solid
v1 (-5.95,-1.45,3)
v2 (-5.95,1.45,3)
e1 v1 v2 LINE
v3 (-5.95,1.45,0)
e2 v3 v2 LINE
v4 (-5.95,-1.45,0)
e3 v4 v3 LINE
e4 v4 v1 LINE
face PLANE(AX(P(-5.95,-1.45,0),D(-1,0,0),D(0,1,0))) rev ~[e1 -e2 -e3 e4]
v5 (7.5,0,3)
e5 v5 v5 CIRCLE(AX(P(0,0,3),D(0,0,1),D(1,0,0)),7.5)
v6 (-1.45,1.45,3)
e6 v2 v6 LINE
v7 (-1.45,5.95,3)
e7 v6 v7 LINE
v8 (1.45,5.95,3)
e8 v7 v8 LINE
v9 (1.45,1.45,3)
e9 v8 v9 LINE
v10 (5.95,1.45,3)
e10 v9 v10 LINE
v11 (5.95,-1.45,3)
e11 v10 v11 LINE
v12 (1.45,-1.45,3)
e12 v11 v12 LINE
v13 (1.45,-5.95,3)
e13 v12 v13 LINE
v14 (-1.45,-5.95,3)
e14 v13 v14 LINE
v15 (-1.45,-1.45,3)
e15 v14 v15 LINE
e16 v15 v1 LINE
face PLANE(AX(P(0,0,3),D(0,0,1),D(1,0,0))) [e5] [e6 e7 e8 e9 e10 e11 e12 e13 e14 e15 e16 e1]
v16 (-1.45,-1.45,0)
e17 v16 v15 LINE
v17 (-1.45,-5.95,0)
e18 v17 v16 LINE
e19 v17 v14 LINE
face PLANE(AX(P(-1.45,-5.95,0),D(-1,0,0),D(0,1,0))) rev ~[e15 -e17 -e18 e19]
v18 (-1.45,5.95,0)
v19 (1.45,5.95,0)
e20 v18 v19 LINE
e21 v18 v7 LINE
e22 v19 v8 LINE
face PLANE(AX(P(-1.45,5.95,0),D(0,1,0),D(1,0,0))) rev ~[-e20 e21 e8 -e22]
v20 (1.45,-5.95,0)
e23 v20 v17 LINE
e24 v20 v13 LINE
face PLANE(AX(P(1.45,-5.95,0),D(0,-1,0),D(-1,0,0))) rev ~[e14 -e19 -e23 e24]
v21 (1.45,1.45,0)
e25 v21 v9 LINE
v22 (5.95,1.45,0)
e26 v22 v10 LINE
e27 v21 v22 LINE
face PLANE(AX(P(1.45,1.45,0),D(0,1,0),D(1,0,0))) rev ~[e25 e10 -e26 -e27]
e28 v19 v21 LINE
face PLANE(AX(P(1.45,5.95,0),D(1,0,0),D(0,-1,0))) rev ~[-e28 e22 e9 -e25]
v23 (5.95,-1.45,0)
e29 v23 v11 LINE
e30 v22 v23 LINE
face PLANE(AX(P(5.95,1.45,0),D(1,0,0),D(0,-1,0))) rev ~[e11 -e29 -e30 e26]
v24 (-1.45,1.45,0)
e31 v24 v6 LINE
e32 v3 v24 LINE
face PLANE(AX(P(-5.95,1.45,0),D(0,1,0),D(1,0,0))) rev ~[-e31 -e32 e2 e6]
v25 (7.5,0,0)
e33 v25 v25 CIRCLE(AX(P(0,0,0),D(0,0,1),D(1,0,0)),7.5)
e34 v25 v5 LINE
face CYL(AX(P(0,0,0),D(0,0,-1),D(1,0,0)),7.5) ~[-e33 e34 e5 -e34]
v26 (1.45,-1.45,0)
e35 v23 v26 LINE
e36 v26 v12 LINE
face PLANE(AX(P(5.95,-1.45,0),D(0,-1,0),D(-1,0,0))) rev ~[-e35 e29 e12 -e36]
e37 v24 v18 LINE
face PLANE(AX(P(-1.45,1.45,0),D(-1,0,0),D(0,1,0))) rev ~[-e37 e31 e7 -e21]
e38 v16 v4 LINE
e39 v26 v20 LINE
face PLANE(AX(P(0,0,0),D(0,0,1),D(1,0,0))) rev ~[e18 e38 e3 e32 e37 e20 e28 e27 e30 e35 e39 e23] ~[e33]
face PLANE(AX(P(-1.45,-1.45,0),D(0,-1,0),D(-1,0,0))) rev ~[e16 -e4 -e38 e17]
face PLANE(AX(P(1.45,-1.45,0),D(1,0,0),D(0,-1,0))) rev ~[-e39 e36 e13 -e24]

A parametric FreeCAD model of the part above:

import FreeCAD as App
import Part
import Sketcher

V = App.Vector
Q = App.Units.Quantity


def add_polygon(sketch, points):
    """Adds a closed chain of lines whose ends are joined by coincident constraints."""
    first, n = sketch.GeometryCount, len(points)
    for a, b in zip(points, points[1:] + points[:1]):
        sketch.addGeometry(Part.LineSegment(App.Vector(*a, 0), App.Vector(*b, 0)), False)
    for i in range(n):
        sketch.addConstraint(Sketcher.Constraint("Coincident", first + i, 2, first + (i + 1) % n, 1))

doc = App.newDocument("Part")
params = doc.addObject("Spreadsheet::Sheet", "Params")
for row, (alias, value) in enumerate([
    ("sketch1_diameter", "15 mm"),
    ("sketch1_width", "2.9 mm"),
    ("sketch1_width2", "4.5 mm"),
    ("pad1_length", "3 mm"),
], start=1):
    params.set(f"A{row}", alias)
    params.set(f"B{row}", "=" + value)
    params.setAlias(f"B{row}", alias)

body = doc.addObject("PartDesign::Body", "Body")

sketch1 = doc.addObject("Sketcher::SketchObject", "Sketch")
body.addObject(sketch1)
sketch1.AttachmentSupport = (doc.XY_Plane, [""])
sketch1.MapMode = "FlatFace"
sketch1.addGeometry(Part.Circle(V(0, 0, 0), V(0, 0, 1), 7.5), False)
add_polygon(sketch1, [(6, 1.4), (6, -1.4), (1.4, -1.4), (1.4, -6), (-1.4, -6), (-1.4, -1.4), (-6, -1.4), (-6, 1.4), (-1.4, 1.4), (-1.4, 6), (1.4, 6), (1.4, 1.4)])
sketch1.addConstraint(Sketcher.Constraint("Vertical", 1))
sketch1.addConstraint(Sketcher.Constraint("Horizontal", 2))
sketch1.addConstraint(Sketcher.Constraint("Vertical", 3))
sketch1.addConstraint(Sketcher.Constraint("Horizontal", 4))
sketch1.addConstraint(Sketcher.Constraint("Vertical", 5))
sketch1.addConstraint(Sketcher.Constraint("Horizontal", 6))
sketch1.addConstraint(Sketcher.Constraint("Vertical", 7))
sketch1.addConstraint(Sketcher.Constraint("Horizontal", 8))
sketch1.addConstraint(Sketcher.Constraint("Vertical", 9))
sketch1.addConstraint(Sketcher.Constraint("Horizontal", 10))
sketch1.addConstraint(Sketcher.Constraint("Vertical", 11))
sketch1.addConstraint(Sketcher.Constraint("Horizontal", 12))
sketch1.addConstraint(Sketcher.Constraint("Coincident", 0, 3, -1, 1))
sketch1.addConstraint(Sketcher.Constraint("Symmetric", 1, 2, 7, 2, -1, 1))
sketch1.addConstraint(Sketcher.Constraint("Symmetric", 3, 2, 9, 2, -1, 1))
sketch1.addConstraint(Sketcher.Constraint("Symmetric", 5, 2, 11, 2, -1, 1))
sketch1.addConstraint(Sketcher.Constraint("Symmetric", 2, 2, 5, 2, -2))
sketch1.addConstraint(Sketcher.Constraint("Equal", 10, 1))
sketch1.addConstraint(Sketcher.Constraint("Equal", 12, 3))
sketch1.addConstraint(Sketcher.Constraint("Diameter", 0, Q("15 mm")))
sketch1.addConstraint(Sketcher.Constraint("DistanceX", 4, 2, 4, 1, Q("2.9 mm")))
sketch1.addConstraint(Sketcher.Constraint("DistanceX", 2, 2, 2, 1, Q("4.5 mm")))
sketch1.setExpression("Constraints[31]", "Params.sketch1_diameter")
sketch1.setExpression("Constraints[32]", "Params.sketch1_width")
sketch1.setExpression("Constraints[33]", "Params.sketch1_width2")
pad1 = doc.addObject("PartDesign::Pad", "Pad")
body.addObject(pad1)
pad1.Profile = sketch1
pad1.setExpression("Length", "Params.pad1_length")

doc.recompute()
